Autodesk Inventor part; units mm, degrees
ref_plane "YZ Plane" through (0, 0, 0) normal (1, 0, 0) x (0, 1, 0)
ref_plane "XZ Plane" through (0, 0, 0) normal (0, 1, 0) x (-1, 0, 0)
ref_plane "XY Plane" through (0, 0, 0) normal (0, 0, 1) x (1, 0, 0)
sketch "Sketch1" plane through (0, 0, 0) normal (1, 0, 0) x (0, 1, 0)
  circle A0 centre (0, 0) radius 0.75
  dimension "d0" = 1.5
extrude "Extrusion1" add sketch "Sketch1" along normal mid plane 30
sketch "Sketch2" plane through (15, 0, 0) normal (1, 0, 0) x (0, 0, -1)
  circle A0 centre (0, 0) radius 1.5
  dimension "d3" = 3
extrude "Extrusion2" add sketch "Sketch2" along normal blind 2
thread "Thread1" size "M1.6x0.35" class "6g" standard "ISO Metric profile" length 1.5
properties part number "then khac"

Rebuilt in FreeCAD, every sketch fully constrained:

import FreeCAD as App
import Part
import Sketcher
Q = App.Units.Quantity

doc = App.newDocument("Part")
body = doc.addObject("PartDesign::Body", "Body")

# Sketch on YZ plane
sketch1 = body.newObject("Sketcher::SketchObject", "Sketch")
sketch1.AttachmentSupport = (doc.getObject("YZ_Plane"), [""])
sketch1.MapMode = "FlatFace"
sketch1.addGeometry(Part.Circle(App.Vector(0, 0, 0), App.Vector(0, 0, 1), 0.75), False)
sketch1.addConstraint([
    Sketcher.Constraint("Coincident", 0, 3, -1, 1),
    Sketcher.Constraint("Diameter", 0, Q("1.5 mm")),
])
pad1 = body.newObject("PartDesign::Pad", "Pad")
pad1.Profile = sketch1
pad1.Length = 30
pad1.Midplane = True

# Sketch on YZ plane
sketch2 = body.newObject("Sketcher::SketchObject", "Sketch001")
sketch2.AttachmentSupport = (doc.getObject("YZ_Plane"), [""])
sketch2.MapMode = "FlatFace"
sketch2.AttachmentOffset = App.Placement(App.Vector(0, 0, 15), App.Rotation())
sketch2.addGeometry(Part.Circle(App.Vector(0, 0, 0), App.Vector(0, 0, 1), 1.5), False)
sketch2.addConstraint([
    Sketcher.Constraint("Coincident", 0, 3, -1, 1),
    Sketcher.Constraint("Diameter", 0, Q("3 mm")),
])
pad2 = body.newObject("PartDesign::Pad", "Pad001")
pad2.Profile = sketch2
pad2.Length = 2

doc.recompute()
